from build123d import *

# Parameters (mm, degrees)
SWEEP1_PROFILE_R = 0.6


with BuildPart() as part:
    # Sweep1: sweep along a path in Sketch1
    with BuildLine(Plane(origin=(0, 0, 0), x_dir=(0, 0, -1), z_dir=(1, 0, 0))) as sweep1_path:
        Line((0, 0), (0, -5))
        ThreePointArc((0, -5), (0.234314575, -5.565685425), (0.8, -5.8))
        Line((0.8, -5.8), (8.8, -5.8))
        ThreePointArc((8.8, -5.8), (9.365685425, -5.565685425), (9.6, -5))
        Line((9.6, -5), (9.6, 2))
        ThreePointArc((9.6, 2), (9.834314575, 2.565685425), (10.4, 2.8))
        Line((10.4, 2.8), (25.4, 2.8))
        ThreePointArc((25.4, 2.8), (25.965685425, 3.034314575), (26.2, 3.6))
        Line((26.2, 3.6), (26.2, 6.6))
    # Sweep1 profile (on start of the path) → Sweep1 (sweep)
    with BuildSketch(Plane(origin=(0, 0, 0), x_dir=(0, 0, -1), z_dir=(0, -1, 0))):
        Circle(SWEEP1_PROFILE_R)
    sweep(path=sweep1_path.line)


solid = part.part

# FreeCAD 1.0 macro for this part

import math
import FreeCAD as App
import Part
import Sketcher
from FreeCAD import Vector

doc = App.newDocument("Part")
params = doc.addObject("Spreadsheet::Sheet", "Params")
for row, (alias, value) in enumerate([
    ("sketch1_diameter", "1.2 mm"),
    ("sketch2_radius", "0.8 mm"),
    ("sketch2_width", "5 mm"),
    ("sketch2_width2", "7 mm"),
    ("sketch2_width3", "3 mm"),
    ("sketch2_height", "8 mm"),
], start=1):
    params.set(f"A{row}", alias)
    params.set(f"B{row}", "=" + value)
    params.setAlias(f"B{row}", alias)

body = doc.addObject("PartDesign::Body", "Body")

sketch1 = doc.addObject("Sketcher::SketchObject", "Sketch")
body.addObject(sketch1)
sketch1.AttachmentSupport = (doc.XZ_Plane, [""])
sketch1.MapMode = "FlatFace"
sketch1.addGeometry(Part.Circle(Vector(0, 0, 0), Vector(0, 0, 1), 0.6), False)
sketch1.addConstraint([
    Sketcher.Constraint("Coincident", 0, 3, -1, 1),
    Sketcher.Constraint("Diameter", 0, 1.2),
])
sketch1.setExpression("Constraints[1]", "Params.sketch1_diameter")

sketch2 = doc.addObject("Sketcher::SketchObject", "Sketch001")
body.addObject(sketch2)
sketch2.AttachmentSupport = (doc.YZ_Plane, [""])
sketch2.MapMode = "FlatFace"
sketch2.addGeometry([
    Part.LineSegment(Vector(0, 0, 0), Vector(-5, 0, 0)),
    Part.ArcOfCircle(Part.Circle(Vector(-5, -0.8, 0), Vector(0, 0, 1), 0.8), math.radians(90), math.radians(180)),
    Part.LineSegment(Vector(-5.8, -0.8, 0), Vector(-5.8, -8.8, 0)),
    Part.ArcOfCircle(Part.Circle(Vector(-5, -8.8, 0), Vector(0, 0, 1), 0.8), math.radians(180), math.radians(270)),
    Part.LineSegment(Vector(-5, -9.6, 0), Vector(2, -9.6, 0)),
    Part.ArcOfCircle(Part.Circle(Vector(2, -10.4, 0), Vector(0, 0, 1), 0.8), math.radians(0), math.radians(90)),
    Part.LineSegment(Vector(2.8, -10.4, 0), Vector(2.8, -25.4, 0)),
    Part.ArcOfCircle(Part.Circle(Vector(3.6, -25.4, 0), Vector(0, 0, 1), 0.8), math.radians(180), math.radians(270)),
    Part.LineSegment(Vector(3.6, -26.2, 0), Vector(6.6, -26.2, 0)),
], False)
sketch2.addConstraint([
    Sketcher.Constraint("Tangent", 0, 2, 1, 1),
    Sketcher.Constraint("Tangent", 1, 2, 2, 1),
    Sketcher.Constraint("Tangent", 2, 2, 3, 1),
    Sketcher.Constraint("Tangent", 3, 2, 4, 1),
    Sketcher.Constraint("Tangent", 4, 2, 5, 2),
    Sketcher.Constraint("Tangent", 5, 1, 6, 1),
    Sketcher.Constraint("Tangent", 6, 2, 7, 1),
    Sketcher.Constraint("Tangent", 7, 2, 8, 1),
    Sketcher.Constraint("Horizontal", 0),
    Sketcher.Constraint("Vertical", 2),
    Sketcher.Constraint("Horizontal", 4),
    Sketcher.Constraint("Vertical", 6),
    Sketcher.Constraint("Horizontal", 8),
    Sketcher.Constraint("Coincident", 0, 1, -1, 1),
    Sketcher.Constraint("Equal", 1, 3),
    Sketcher.Constraint("Equal", 3, 5),
    Sketcher.Constraint("Equal", 5, 7),
    Sketcher.Constraint("Radius", 1, 0.8),
    Sketcher.Constraint("DistanceX", 0, 2, 0, 1, 5.0),
    Sketcher.Constraint("DistanceX", 4, 1, 4, 2, 7.0),
    Sketcher.Constraint("DistanceX", 8, 1, 8, 2, 3.0),
    Sketcher.Constraint("DistanceY", 2, 2, 2, 1, 8.0),
    Sketcher.Constraint("DistanceY", 6, 2, 6, 1, 15.0),
])
sketch2.setExpression("Constraints[17]", "Params.sketch2_radius")
sketch2.setExpression("Constraints[18]", "Params.sketch2_width")
sketch2.setExpression("Constraints[19]", "Params.sketch2_width2")
sketch2.setExpression("Constraints[20]", "Params.sketch2_width3")
sketch2.setExpression("Constraints[21]", "Params.sketch2_height")
doc.recompute()

additivepipe = doc.addObject("PartDesign::AdditivePipe", "AdditivePipe")
body.addObject(additivepipe)
additivepipe.Profile = sketch1
additivepipe.Spine = (sketch2, ["Edge1", "Edge2", "Edge3", "Edge4", "Edge5", "Edge6", "Edge7", "Edge8", "Edge9"])

doc.recompute()
